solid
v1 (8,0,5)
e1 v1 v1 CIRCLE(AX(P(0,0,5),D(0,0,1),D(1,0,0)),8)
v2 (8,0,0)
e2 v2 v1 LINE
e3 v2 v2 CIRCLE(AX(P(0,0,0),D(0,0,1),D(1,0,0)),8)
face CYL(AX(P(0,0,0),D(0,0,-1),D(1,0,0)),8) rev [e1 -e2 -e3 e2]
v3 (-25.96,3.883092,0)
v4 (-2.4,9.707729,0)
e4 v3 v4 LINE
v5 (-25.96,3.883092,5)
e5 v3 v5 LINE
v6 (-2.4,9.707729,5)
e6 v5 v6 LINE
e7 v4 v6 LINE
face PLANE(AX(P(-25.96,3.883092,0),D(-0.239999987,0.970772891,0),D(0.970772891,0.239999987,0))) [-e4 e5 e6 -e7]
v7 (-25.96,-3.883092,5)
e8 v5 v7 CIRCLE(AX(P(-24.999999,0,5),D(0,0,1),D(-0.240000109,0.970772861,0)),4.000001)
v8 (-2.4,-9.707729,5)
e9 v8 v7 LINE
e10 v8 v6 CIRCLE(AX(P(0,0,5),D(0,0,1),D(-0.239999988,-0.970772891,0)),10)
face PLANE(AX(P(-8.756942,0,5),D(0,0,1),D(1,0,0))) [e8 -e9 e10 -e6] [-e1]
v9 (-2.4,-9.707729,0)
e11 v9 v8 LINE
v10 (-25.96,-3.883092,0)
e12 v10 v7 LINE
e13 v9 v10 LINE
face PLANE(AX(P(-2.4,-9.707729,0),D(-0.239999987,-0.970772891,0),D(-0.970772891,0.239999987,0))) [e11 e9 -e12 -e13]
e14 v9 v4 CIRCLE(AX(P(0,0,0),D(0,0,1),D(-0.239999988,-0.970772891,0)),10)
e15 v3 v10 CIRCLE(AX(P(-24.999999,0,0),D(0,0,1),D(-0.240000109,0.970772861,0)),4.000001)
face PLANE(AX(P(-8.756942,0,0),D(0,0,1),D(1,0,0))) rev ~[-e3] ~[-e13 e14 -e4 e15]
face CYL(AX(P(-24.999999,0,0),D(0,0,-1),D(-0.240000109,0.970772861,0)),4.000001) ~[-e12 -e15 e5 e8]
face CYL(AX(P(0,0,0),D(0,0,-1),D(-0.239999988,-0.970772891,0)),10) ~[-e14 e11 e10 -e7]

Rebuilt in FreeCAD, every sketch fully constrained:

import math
import FreeCAD as App
import Part
import Sketcher
Q = App.Units.Quantity

doc = App.newDocument("Part")
body = doc.addObject("PartDesign::Body", "Body")

# Sketch on XY plane
sketch1 = doc.addObject("Sketcher::SketchObject", "Sketch")
body.addObject(sketch1)
sketch1.AttachmentSupport = (doc.XY_Plane, [""])
sketch1.MapMode = "FlatFace"
sketch1.addGeometry([
    Part.ArcOfCircle(Part.Circle(App.Vector(0, 0, 0), App.Vector(0, 0, 1), 10), math.radians(-104), math.radians(104)),  # 0
    Part.LineSegment(App.Vector(-2.4, 9.7, 0), App.Vector(-26, 3.9, 0)),  # 1
    Part.ArcOfCircle(Part.Circle(App.Vector(-25, 0, 0), App.Vector(0, 0, 1), 4), math.radians(104), math.radians(256)),  # 2
    Part.LineSegment(App.Vector(-26, -3.9, 0), App.Vector(-2.4, -9.7, 0)),  # 3
    Part.Circle(App.Vector(0, 0, 0), App.Vector(0, 0, 1), 8),  # 4
], False)
sketch1.addConstraint([
    Sketcher.Constraint("Tangent", 0, 2, 1, 1),
    Sketcher.Constraint("Tangent", 1, 2, 2, 1),
    Sketcher.Constraint("Tangent", 2, 2, 3, 1),
    Sketcher.Constraint("Tangent", 3, 2, 0, 1),
    Sketcher.Constraint("Coincident", 0, 3, -1, 1),
    Sketcher.Constraint("Coincident", 4, 3, -1, 1),
    Sketcher.Constraint("PointOnObject", 2, 3, -1),
    Sketcher.Constraint("Diameter", 4, Q("16 mm")),
    Sketcher.Constraint("Radius", 0, Q("10 mm")),
    Sketcher.Constraint("Radius", 2, Q("4.000001 mm")),
    Sketcher.Constraint("DistanceX", 2, 3, -1, 1, Q("24.999999 mm")),
])
pad1 = doc.addObject("PartDesign::Pad", "Pad")
body.addObject(pad1)
pad1.Profile = sketch1
pad1.Length = 5

doc.recompute()
